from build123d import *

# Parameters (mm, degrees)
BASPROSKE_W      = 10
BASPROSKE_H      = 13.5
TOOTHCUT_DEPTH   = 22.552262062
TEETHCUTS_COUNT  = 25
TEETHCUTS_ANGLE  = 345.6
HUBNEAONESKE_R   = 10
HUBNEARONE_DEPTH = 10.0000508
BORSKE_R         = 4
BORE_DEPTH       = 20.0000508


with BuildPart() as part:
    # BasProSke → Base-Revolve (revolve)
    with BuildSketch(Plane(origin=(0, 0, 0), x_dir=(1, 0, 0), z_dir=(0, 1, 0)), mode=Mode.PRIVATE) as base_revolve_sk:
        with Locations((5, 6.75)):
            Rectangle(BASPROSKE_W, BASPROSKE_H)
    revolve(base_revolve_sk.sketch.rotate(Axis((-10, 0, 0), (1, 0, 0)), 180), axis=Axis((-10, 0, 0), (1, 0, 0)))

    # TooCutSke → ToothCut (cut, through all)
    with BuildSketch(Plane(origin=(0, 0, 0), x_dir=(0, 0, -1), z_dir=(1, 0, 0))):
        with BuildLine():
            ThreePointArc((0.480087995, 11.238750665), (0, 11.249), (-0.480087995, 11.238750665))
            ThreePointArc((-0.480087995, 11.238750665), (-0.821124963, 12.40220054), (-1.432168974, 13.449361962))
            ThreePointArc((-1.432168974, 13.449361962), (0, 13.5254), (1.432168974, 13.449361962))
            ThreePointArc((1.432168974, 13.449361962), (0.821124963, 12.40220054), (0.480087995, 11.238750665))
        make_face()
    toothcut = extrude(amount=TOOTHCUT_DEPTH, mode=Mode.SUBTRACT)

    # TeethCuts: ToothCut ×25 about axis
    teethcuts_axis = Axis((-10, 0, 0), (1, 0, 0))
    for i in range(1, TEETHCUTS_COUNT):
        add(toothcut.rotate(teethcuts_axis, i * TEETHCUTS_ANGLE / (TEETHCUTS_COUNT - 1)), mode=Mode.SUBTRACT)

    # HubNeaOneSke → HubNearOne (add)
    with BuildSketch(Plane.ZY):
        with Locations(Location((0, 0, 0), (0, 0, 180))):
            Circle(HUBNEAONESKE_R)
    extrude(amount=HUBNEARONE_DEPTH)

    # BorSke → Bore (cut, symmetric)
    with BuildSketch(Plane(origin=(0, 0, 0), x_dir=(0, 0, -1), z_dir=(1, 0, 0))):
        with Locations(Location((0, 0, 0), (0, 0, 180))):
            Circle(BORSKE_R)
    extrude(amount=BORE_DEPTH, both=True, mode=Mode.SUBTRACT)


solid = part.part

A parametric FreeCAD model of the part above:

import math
import FreeCAD as App
import Part
import Sketcher

V = App.Vector

doc = App.newDocument("Part")
body = doc.addObject("PartDesign::Body", "Body")

sketch1 = body.newObject("Sketcher::SketchObject", "Sketch")
sketch1.AttachmentSupport = (doc.getObject("XZ_Plane"), [""])
sketch1.MapMode = "FlatFace"
sketch1.addGeometry(Part.LineSegment(V(0, -14, 0), V(0, 0, 0)), False)
sketch1.addGeometry(Part.LineSegment(V(0, 0, 0), V(10, 0, 0)), False)
sketch1.addGeometry(Part.LineSegment(V(10, 0, 0), V(10, -14, 0)), False)
sketch1.addGeometry(Part.LineSegment(V(10, -14, 0), V(0, -14, 0)), False)
sketch1.addConstraint(Sketcher.Constraint("Coincident", 0, 2, 1, 1))
sketch1.addConstraint(Sketcher.Constraint("Coincident", 1, 2, 2, 1))
sketch1.addConstraint(Sketcher.Constraint("Coincident", 2, 2, 3, 1))
sketch1.addConstraint(Sketcher.Constraint("Coincident", 3, 2, 0, 1))
sketch1.addConstraint(Sketcher.Constraint("Vertical", 0))
sketch1.addConstraint(Sketcher.Constraint("Horizontal", 1))
sketch1.addConstraint(Sketcher.Constraint("Vertical", 2))
sketch1.addConstraint(Sketcher.Constraint("Horizontal", 3))
sketch1.addConstraint(Sketcher.Constraint("Coincident", 0, 2, -1, 1))
sketch1.addConstraint(Sketcher.Constraint("DistanceX", 1, 1, 1, 2, 10.0))
sketch1.addConstraint(Sketcher.Constraint("DistanceY", 0, 1, 0, 2, 13.5))
revolution = body.newObject("PartDesign::Revolution", "Revolution")
revolution.Profile = sketch1
revolution.ReferenceAxis = (sketch1, ["H_Axis"])
revolution.Angle = 360

sketch2 = body.newObject("Sketcher::SketchObject", "Sketch001")
sketch2.AttachmentSupport = (doc.getObject("YZ_Plane"), [""])
sketch2.MapMode = "FlatFace"
sketch2.addGeometry(Part.ArcOfCircle(Part.Circle(V(0, 0, 0), V(0, 0, 1), 11.2), math.radians(-2.45), math.radians(2.45)), False)
sketch2.addGeometry(Part.ArcOfCircle(Part.Circle(V(10.4, -5.4, 0), V(0, 0, 1), 5), math.radians(53), math.radians(81)), False)
sketch2.addGeometry(Part.ArcOfCircle(Part.Circle(V(0, 0, 0), V(0, 0, 1), 13.5), math.radians(-6.08), math.radians(6.08)), False)
sketch2.addGeometry(Part.ArcOfCircle(Part.Circle(V(10.4, 5.4, 0), V(0, 0, 1), 5), math.radians(-81), math.radians(-53)), False)
sketch2.addConstraint(Sketcher.Constraint("Coincident", 0, 1, 1, 2))
sketch2.addConstraint(Sketcher.Constraint("Coincident", 1, 1, 2, 1))
sketch2.addConstraint(Sketcher.Constraint("Coincident", 2, 2, 3, 2))
sketch2.addConstraint(Sketcher.Constraint("Coincident", 3, 1, 0, 2))
sketch2.addConstraint(Sketcher.Constraint("Coincident", 0, 3, -1, 1))
sketch2.addConstraint(Sketcher.Constraint("Coincident", 2, 3, -1, 1))
sketch2.addConstraint(Sketcher.Constraint("Equal", 1, 3))
sketch2.addConstraint(Sketcher.Constraint("Symmetric", 1, 3, 3, 3, -1))
sketch2.addConstraint(Sketcher.Constraint("Radius", 1, 5.0))
sketch2.addConstraint(Sketcher.Constraint("Radius", 0, 11.249))
sketch2.addConstraint(Sketcher.Constraint("Radius", 2, 13.5254))
sketch2.addConstraint(Sketcher.Constraint("DistanceX", -1, 1, 1, 3, 10.424401))
sketch2.addConstraint(Sketcher.Constraint("DistanceX", -1, 1, 0, 1, 11.238751))
pocket1 = body.newObject("PartDesign::Pocket", "Pocket")
pocket1.Profile = sketch2
pocket1.Type = "ThroughAll"
pocket1.Reversed = True
doc.recompute()

polarpattern = body.newObject("PartDesign::PolarPattern", "PolarPattern")
polarpattern.Originals = [pocket1]
polarpattern.Axis = (doc.getObject("X_Axis"), [""])
polarpattern.Angle = 360
polarpattern.Occurrences = 25
body.Tip = polarpattern

sketch3 = body.newObject("Sketcher::SketchObject", "Sketch002")
sketch3.AttachmentSupport = (doc.getObject("YZ_Plane"), [""])
sketch3.MapMode = "FlatFace"
sketch3.addGeometry(Part.Circle(V(0, 0, 0), V(0, 0, 1), 10), False)
sketch3.addConstraint(Sketcher.Constraint("Coincident", 0, 3, -1, 1))
sketch3.addConstraint(Sketcher.Constraint("Diameter", 0, 20.0))
pad1 = body.newObject("PartDesign::Pad", "Pad")
pad1.Profile = sketch3
pad1.Length = 10.000051
pad1.Reversed = True

sketch4 = body.newObject("Sketcher::SketchObject", "Sketch003")
sketch4.AttachmentSupport = (doc.getObject("YZ_Plane"), [""])
sketch4.MapMode = "FlatFace"
sketch4.addGeometry(Part.Circle(V(0, 0, 0), V(0, 0, 1), 4), False)
sketch4.addConstraint(Sketcher.Constraint("Coincident", 0, 3, -1, 1))
sketch4.addConstraint(Sketcher.Constraint("Diameter", 0, 8.0))
pocket2 = body.newObject("PartDesign::Pocket", "Pocket001")
pocket2.Profile = sketch4
pocket2.Length = 40.000102
pocket2.Midplane = True

doc.recompute()
